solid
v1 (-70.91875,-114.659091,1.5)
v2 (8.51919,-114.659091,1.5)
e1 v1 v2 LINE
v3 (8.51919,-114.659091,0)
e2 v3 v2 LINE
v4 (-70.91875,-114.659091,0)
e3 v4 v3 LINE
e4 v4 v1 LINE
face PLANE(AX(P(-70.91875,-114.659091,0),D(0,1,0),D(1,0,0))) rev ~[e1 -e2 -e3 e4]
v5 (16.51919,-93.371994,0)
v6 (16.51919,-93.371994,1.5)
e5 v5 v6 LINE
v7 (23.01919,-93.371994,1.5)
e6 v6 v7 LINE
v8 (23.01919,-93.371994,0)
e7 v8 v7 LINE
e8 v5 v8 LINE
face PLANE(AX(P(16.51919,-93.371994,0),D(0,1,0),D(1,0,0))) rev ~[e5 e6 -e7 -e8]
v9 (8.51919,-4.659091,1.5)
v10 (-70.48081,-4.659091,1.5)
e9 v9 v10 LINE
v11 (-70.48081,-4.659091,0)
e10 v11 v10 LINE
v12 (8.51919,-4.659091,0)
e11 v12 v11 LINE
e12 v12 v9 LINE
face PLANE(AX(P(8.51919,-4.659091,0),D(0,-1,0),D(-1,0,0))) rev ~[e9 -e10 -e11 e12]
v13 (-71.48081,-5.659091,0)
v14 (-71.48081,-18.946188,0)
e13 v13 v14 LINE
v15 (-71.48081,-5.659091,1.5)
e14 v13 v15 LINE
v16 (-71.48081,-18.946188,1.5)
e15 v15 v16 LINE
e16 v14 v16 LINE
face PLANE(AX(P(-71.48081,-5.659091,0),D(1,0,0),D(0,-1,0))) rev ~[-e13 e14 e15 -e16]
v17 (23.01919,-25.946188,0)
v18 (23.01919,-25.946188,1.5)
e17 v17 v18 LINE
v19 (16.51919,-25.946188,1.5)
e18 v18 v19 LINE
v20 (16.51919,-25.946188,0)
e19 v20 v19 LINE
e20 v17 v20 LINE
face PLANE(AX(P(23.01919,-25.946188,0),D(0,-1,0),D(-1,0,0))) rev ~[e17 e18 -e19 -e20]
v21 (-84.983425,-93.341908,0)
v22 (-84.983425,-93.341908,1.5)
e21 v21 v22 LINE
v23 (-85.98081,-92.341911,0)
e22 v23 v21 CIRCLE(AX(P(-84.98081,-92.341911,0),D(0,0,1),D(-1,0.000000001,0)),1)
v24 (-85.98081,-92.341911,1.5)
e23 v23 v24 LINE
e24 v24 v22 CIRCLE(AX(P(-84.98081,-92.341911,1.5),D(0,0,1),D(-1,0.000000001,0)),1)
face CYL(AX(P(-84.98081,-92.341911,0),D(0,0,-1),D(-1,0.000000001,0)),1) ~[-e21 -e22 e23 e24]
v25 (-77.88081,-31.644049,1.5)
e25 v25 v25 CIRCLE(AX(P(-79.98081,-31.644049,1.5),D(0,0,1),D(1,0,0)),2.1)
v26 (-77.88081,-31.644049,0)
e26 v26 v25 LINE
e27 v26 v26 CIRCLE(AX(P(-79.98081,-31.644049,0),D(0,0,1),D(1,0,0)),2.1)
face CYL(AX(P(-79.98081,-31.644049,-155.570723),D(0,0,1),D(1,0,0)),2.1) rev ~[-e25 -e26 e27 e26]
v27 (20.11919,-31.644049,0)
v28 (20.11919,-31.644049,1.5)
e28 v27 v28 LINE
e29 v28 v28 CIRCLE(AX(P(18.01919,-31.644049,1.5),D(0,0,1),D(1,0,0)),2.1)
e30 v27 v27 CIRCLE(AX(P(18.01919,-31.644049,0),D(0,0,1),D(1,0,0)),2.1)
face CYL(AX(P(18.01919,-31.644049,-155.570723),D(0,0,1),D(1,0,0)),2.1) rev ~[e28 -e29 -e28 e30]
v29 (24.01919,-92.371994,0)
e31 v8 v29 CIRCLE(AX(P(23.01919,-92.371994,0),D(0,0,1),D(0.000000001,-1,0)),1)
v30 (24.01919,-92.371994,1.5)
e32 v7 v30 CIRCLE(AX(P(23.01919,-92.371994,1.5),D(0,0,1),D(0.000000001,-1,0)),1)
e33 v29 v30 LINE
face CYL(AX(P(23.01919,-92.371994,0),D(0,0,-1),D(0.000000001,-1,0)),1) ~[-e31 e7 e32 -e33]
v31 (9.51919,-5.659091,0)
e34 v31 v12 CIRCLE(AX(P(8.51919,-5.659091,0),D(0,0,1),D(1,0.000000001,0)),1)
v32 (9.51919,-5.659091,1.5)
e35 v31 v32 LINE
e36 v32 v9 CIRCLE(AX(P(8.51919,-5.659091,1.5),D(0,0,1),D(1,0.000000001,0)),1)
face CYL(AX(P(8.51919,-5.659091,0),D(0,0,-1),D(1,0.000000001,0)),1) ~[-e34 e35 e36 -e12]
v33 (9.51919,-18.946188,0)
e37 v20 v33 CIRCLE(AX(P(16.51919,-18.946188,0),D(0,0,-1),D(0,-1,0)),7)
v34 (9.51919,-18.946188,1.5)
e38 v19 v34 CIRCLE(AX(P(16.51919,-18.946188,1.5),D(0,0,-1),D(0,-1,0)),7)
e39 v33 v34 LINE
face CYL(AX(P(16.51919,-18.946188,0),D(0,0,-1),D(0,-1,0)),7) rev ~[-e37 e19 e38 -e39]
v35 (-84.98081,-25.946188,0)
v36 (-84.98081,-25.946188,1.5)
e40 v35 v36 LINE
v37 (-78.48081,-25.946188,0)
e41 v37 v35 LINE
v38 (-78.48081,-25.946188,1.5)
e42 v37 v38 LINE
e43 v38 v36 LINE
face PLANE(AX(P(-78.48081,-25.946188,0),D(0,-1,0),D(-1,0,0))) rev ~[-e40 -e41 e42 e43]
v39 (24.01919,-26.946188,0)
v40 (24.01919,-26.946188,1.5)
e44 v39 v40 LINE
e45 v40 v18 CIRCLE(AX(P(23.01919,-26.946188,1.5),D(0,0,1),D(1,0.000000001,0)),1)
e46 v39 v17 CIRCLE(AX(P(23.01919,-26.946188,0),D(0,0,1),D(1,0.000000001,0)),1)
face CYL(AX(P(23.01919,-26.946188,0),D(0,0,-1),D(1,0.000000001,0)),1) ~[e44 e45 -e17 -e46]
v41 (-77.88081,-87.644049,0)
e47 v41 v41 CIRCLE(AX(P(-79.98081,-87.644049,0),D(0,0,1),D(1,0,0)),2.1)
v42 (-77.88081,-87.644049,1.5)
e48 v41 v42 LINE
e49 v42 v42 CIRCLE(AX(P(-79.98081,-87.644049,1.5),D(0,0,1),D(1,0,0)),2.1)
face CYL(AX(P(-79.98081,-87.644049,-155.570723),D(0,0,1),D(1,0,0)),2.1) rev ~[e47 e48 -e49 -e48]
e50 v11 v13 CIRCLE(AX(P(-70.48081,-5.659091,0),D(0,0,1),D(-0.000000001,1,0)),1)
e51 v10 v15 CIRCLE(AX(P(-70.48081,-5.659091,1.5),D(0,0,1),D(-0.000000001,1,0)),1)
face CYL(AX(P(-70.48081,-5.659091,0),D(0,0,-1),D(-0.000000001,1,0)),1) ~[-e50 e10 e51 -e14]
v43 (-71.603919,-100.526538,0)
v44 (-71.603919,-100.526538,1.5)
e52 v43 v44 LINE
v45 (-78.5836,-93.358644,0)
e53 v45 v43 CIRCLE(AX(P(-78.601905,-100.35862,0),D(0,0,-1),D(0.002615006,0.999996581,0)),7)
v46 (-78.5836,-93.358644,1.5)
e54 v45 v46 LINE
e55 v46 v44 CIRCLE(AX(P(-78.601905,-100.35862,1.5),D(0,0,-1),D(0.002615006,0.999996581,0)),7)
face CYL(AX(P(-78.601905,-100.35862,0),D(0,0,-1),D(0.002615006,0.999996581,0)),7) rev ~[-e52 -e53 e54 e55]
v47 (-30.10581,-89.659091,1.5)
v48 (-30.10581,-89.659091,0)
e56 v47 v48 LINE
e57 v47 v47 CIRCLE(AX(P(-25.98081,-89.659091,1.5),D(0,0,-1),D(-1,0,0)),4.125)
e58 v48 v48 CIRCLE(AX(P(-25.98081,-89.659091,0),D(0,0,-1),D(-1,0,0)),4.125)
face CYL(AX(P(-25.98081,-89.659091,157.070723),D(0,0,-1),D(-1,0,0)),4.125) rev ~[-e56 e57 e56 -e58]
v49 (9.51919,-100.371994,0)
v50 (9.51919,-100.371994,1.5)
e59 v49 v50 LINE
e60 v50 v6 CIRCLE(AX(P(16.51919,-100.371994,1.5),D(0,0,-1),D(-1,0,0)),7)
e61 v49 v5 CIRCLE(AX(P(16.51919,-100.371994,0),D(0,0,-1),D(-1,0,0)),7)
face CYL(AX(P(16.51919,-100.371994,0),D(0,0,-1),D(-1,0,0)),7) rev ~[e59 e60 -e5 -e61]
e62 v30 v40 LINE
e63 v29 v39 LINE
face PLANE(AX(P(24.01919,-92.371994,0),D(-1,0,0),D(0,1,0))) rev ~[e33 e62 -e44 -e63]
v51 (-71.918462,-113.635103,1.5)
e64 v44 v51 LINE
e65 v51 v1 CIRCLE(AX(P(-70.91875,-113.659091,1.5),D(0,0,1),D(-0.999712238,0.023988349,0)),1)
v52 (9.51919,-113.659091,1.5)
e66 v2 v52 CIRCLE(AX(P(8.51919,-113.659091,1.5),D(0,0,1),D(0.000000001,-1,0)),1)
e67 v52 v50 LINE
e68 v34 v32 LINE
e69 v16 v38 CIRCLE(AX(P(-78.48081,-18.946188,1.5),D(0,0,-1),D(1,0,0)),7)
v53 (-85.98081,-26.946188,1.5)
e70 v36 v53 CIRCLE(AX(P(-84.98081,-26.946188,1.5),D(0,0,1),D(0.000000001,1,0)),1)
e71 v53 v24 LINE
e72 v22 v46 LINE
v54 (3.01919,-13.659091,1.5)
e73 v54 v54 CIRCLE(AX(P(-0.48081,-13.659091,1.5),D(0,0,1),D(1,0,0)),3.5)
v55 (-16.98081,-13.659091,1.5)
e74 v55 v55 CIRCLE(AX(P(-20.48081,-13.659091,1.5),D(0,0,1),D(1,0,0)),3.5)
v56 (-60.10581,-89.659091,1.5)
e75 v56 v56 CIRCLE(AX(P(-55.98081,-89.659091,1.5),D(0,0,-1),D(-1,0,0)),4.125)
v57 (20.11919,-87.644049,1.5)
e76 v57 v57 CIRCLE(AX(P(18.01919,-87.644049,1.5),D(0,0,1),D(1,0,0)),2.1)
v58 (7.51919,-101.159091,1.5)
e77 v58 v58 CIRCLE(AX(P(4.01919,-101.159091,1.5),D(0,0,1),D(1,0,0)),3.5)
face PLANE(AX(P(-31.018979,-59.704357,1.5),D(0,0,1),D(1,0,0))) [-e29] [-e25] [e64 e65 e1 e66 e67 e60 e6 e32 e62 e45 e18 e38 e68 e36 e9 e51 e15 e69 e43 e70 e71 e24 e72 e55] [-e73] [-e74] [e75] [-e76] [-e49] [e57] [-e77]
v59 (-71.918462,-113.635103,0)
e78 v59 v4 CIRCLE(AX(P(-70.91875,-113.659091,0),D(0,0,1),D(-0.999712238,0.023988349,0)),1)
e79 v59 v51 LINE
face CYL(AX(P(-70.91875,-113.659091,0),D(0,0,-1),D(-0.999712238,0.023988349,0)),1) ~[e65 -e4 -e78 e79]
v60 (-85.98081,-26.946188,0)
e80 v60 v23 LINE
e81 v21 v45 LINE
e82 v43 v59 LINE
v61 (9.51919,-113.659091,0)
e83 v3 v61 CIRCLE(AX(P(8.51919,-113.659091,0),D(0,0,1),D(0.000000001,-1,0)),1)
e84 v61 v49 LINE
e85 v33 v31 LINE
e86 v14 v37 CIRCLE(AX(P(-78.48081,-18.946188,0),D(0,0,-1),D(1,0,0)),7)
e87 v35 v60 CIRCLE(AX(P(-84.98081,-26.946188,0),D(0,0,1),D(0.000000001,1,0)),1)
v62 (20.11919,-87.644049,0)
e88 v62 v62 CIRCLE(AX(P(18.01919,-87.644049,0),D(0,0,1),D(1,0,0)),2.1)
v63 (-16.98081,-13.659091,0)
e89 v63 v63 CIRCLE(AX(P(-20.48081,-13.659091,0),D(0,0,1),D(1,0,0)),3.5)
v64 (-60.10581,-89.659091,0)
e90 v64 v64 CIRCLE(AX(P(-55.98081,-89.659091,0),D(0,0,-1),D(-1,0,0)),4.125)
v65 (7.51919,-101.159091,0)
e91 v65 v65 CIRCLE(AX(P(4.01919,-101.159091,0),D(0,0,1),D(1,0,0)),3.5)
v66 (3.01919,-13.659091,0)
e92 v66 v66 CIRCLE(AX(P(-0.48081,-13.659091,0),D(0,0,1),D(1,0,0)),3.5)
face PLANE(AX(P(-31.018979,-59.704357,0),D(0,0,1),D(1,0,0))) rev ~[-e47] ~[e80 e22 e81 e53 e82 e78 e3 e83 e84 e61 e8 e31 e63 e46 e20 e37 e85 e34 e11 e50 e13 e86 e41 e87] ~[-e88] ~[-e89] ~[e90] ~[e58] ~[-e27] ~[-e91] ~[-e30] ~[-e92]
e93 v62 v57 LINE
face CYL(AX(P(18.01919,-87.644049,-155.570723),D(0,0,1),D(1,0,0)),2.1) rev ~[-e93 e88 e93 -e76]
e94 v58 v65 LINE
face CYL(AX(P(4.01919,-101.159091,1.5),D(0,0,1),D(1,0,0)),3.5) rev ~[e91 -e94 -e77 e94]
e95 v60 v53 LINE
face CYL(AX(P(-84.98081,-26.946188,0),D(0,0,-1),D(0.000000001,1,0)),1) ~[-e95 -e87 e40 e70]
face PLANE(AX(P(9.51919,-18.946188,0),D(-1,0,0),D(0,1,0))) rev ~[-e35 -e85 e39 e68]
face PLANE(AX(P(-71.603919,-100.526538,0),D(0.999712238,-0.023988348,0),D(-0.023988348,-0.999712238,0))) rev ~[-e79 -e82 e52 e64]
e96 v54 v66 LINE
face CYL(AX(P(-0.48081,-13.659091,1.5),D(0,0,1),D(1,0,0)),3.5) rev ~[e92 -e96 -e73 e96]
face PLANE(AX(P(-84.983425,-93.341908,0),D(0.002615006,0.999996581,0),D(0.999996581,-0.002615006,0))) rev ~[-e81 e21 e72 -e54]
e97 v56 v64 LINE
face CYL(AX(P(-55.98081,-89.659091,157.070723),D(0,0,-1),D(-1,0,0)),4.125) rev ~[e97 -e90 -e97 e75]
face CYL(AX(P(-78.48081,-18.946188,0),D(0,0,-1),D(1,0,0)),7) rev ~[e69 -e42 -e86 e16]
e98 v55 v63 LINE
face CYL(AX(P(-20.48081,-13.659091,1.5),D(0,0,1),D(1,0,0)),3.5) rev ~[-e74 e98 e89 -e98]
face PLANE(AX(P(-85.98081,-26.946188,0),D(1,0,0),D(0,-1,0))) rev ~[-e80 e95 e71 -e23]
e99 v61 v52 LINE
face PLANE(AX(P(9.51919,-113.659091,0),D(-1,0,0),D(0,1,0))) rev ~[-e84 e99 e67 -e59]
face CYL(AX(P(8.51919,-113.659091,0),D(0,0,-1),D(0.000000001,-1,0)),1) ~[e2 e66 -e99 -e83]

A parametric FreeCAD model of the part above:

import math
import FreeCAD as App
import Part
import Sketcher

doc = App.newDocument("Part")
params = doc.addObject("Spreadsheet::Sheet", "Params")
for row, (alias, value) in enumerate([
    ("sketch1_radius", "1 mm"),
    ("sketch1_radius2", "7 mm"),
    ("sketch1_width", "79 mm"),
    ("sketch1_width2", "6.5 mm"),
    ("pad1_length", "1.5 mm"),
    ("sketch2_diameter", "4.2 mm"),
    ("hole_diameter", "4.2 mm"),
    ("sketch3_diameter", "8.25 mm"),
    ("hole2_diameter", "8.25 mm"),
    ("sketch4_diameter", "7 mm"),
    ("sketch5_diameter", "7 mm"),
], start=1):
    params.set(f"A{row}", alias)
    params.set(f"B{row}", "=" + value)
    params.setAlias(f"B{row}", alias)

body = doc.addObject("PartDesign::Body", "Body")

sketch1 = body.newObject("Sketcher::SketchObject", "Sketch")
sketch1.AttachmentSupport = (doc.getObject("XY_Plane"), [""])
sketch1.MapMode = "FlatFace"
sketch1.addGeometry([
    Part.LineSegment(App.Vector(9.5, -18.9, 0), App.Vector(9.5, -5.7, 0)),
    Part.ArcOfCircle(Part.Circle(App.Vector(8.5, -5.7, 0), App.Vector(0, 0, 1), 1), math.radians(0), math.radians(90)),
    Part.LineSegment(App.Vector(8.5, -4.7, 0), App.Vector(-70.5, -4.7, 0)),
    Part.ArcOfCircle(Part.Circle(App.Vector(-70.5, -5.7, 0), App.Vector(0, 0, 1), 1), math.radians(90), math.radians(180)),
    Part.LineSegment(App.Vector(-71.5, -5.7, 0), App.Vector(-71.5, -18.9, 0)),
    Part.ArcOfCircle(Part.Circle(App.Vector(-78.5, -18.9, 0), App.Vector(0, 0, 1), 7), math.radians(-90), math.radians(0)),
    Part.LineSegment(App.Vector(-78.5, -25.9, 0), App.Vector(-85, -25.9, 0)),
    Part.ArcOfCircle(Part.Circle(App.Vector(-85, -26.9, 0), App.Vector(0, 0, 1), 1), math.radians(90), math.radians(180)),
    Part.LineSegment(App.Vector(-86, -26.9, 0), App.Vector(-86, -92.3, 0)),
    Part.ArcOfCircle(Part.Circle(App.Vector(-85, -92.3, 0), App.Vector(0, 0, 1), 1), math.radians(180), math.radians(270)),
    Part.LineSegment(App.Vector(-85, -93.3, 0), App.Vector(-78.6, -93.4, 0)),
    Part.ArcOfCircle(Part.Circle(App.Vector(-78.6, -100.4, 0), App.Vector(0, 0, 1), 7), math.radians(-1), math.radians(90)),
    Part.LineSegment(App.Vector(-71.6, -100.5, 0), App.Vector(-71.9, -113.6, 0)),
    Part.ArcOfCircle(Part.Circle(App.Vector(-70.9, -113.7, 0), App.Vector(0, 0, 1), 1), math.radians(179), math.radians(270)),
    Part.LineSegment(App.Vector(-70.9, -114.7, 0), App.Vector(8.5, -114.7, 0)),
    Part.ArcOfCircle(Part.Circle(App.Vector(8.5, -113.7, 0), App.Vector(0, 0, 1), 1), math.radians(-90), math.radians(0)),
    Part.LineSegment(App.Vector(9.5, -113.7, 0), App.Vector(9.5, -100.4, 0)),
    Part.ArcOfCircle(Part.Circle(App.Vector(16.5, -100.4, 0), App.Vector(0, 0, 1), 7), math.radians(90), math.radians(180)),
    Part.LineSegment(App.Vector(16.5, -93.4, 0), App.Vector(23, -93.4, 0)),
    Part.ArcOfCircle(Part.Circle(App.Vector(23, -92.4, 0), App.Vector(0, 0, 1), 1), math.radians(-90), math.radians(0)),
    Part.LineSegment(App.Vector(24, -92.4, 0), App.Vector(24, -26.9, 0)),
    Part.ArcOfCircle(Part.Circle(App.Vector(23, -26.9, 0), App.Vector(0, 0, 1), 1), math.radians(0), math.radians(90)),
    Part.LineSegment(App.Vector(23, -25.9, 0), App.Vector(16.5, -25.9, 0)),
    Part.ArcOfCircle(Part.Circle(App.Vector(16.5, -18.9, 0), App.Vector(0, 0, 1), 7), math.radians(180), math.radians(270)),
], False)
sketch1.addConstraint([
    Sketcher.Constraint("Tangent", 0, 2, 1, 1),
    Sketcher.Constraint("Tangent", 1, 2, 2, 1),
    Sketcher.Constraint("Tangent", 2, 2, 3, 1),
    Sketcher.Constraint("Tangent", 3, 2, 4, 1),
    Sketcher.Constraint("Tangent", 4, 2, 5, 2),
    Sketcher.Constraint("Tangent", 5, 1, 6, 1),
    Sketcher.Constraint("Tangent", 6, 2, 7, 1),
    Sketcher.Constraint("Tangent", 7, 2, 8, 1),
    Sketcher.Constraint("Tangent", 8, 2, 9, 1),
    Sketcher.Constraint("Tangent", 9, 2, 10, 1),
    Sketcher.Constraint("Tangent", 10, 2, 11, 2),
    Sketcher.Constraint("Tangent", 11, 1, 12, 1),
    Sketcher.Constraint("Tangent", 12, 2, 13, 1),
    Sketcher.Constraint("Tangent", 13, 2, 14, 1),
    Sketcher.Constraint("Tangent", 14, 2, 15, 1),
    Sketcher.Constraint("Tangent", 15, 2, 16, 1),
    Sketcher.Constraint("Tangent", 16, 2, 17, 2),
    Sketcher.Constraint("Tangent", 17, 1, 18, 1),
    Sketcher.Constraint("Tangent", 18, 2, 19, 1),
    Sketcher.Constraint("Tangent", 19, 2, 20, 1),
    Sketcher.Constraint("Tangent", 20, 2, 21, 1),
    Sketcher.Constraint("Tangent", 21, 2, 22, 1),
    Sketcher.Constraint("Tangent", 22, 2, 23, 2),
    Sketcher.Constraint("Tangent", 23, 1, 0, 1),
    Sketcher.Constraint("Vertical", 0),
    Sketcher.Constraint("Horizontal", 2),
    Sketcher.Constraint("Vertical", 4),
    Sketcher.Constraint("Horizontal", 6),
    Sketcher.Constraint("Vertical", 8),
    Sketcher.Constraint("Horizontal", 14),
    Sketcher.Constraint("Vertical", 16),
    Sketcher.Constraint("Horizontal", 18),
    Sketcher.Constraint("Vertical", 20),
    Sketcher.Constraint("Horizontal", 22),
    Sketcher.Constraint("Equal", 1, 3),
    Sketcher.Constraint("Equal", 3, 7),
    Sketcher.Constraint("Equal", 7, 9),
    Sketcher.Constraint("Equal", 5, 11),
    Sketcher.Constraint("Equal", 9, 13),
    Sketcher.Constraint("Equal", 13, 15),
    Sketcher.Constraint("Equal", 11, 17),
    Sketcher.Constraint("Equal", 15, 19),
    Sketcher.Constraint("Equal", 19, 21),
    Sketcher.Constraint("Equal", 17, 23),
    Sketcher.Constraint("Horizontal", 7, 3, 21, 3),
    Sketcher.Constraint("Vertical", 1, 3, 15, 3),
    Sketcher.Constraint("Equal", 6, 18),
    Sketcher.Constraint("Equal", 4, 16),
    Sketcher.Constraint("Radius", 1, 1.0),
    Sketcher.Constraint("Radius", 5, 7.0),
    Sketcher.Constraint("DistanceX", 2, 2, 2, 1, 79.0),
    Sketcher.Constraint("DistanceX", 6, 2, 6, 1, 6.5),
    Sketcher.Constraint("DistanceY", 13, 3, 3, 3, 108.0),
    Sketcher.Constraint("DistanceX", 14, 1, 14, 2, 79.43794),
    Sketcher.Constraint("DistanceX", 10, 2, -1, 1, 78.5836),
    Sketcher.Constraint("DistanceY", 0, 1, 0, 2, 13.287097),
    Sketcher.Constraint("DistanceY", 8, 2, 8, 1, 65.395724),
    Sketcher.Constraint("DistanceX", -1, 1, 1, 3, 8.51919),
    Sketcher.Constraint("DistanceY", 1, 3, -1, 1, 5.659091),
    Sketcher.Constraint("DistanceY", 11, 3, -1, 1, 100.35862),
])
sketch1.setExpression("Constraints[48]", "Params.sketch1_radius")
sketch1.setExpression("Constraints[49]", "Params.sketch1_radius2")
sketch1.setExpression("Constraints[50]", "Params.sketch1_width")
sketch1.setExpression("Constraints[51]", "Params.sketch1_width2")
pad1 = body.newObject("PartDesign::Pad", "Pad")
pad1.Profile = sketch1
pad1.setExpression("Length", "Params.pad1_length")

sketch2 = body.newObject("Sketcher::SketchObject", "Sketch001")
sketch2.AttachmentSupport = (doc.getObject("XY_Plane"), [""])
sketch2.MapMode = "FlatFace"
sketch2.addGeometry([
    Part.Circle(App.Vector(-80, -87.6, 0), App.Vector(0, 0, 1), 2.1),
    Part.Circle(App.Vector(18, -87.6, 0), App.Vector(0, 0, 1), 2.1),
    Part.Circle(App.Vector(18, -31.6, 0), App.Vector(0, 0, 1), 2.1),
    Part.Circle(App.Vector(-80, -31.6, 0), App.Vector(0, 0, 1), 2.1),
], False)
sketch2.addConstraint([
    Sketcher.Constraint("Equal", 0, 1),
    Sketcher.Constraint("Equal", 1, 2),
    Sketcher.Constraint("Equal", 2, 3),
    Sketcher.Constraint("Horizontal", 0, 3, 1, 3),
    Sketcher.Constraint("Horizontal", 2, 3, 3, 3),
    Sketcher.Constraint("Vertical", 1, 3, 2, 3),
    Sketcher.Constraint("Vertical", 0, 3, 3, 3),
    Sketcher.Constraint("Diameter", 0, 4.2),
    Sketcher.Constraint("DistanceX", 0, 3, 1, 3, 98.0),
    Sketcher.Constraint("DistanceY", 1, 3, 2, 3, 56.0),
    Sketcher.Constraint("DistanceX", 0, 3, -1, 1, 79.98081),
    Sketcher.Constraint("DistanceY", 0, 3, -1, 1, 87.644049),
])
sketch2.setExpression("Constraints[7]", "Params.sketch2_diameter")
doc.recompute()
hole = body.newObject("PartDesign::Hole", "Hole")
hole.Profile = sketch2
hole.ThreadType = "None"
hole.setExpression("Diameter", "Params.hole_diameter")
hole.DepthType = "ThroughAll"
hole.Reversed = True

sketch3 = body.newObject("Sketcher::SketchObject", "Sketch002")
sketch3.AttachmentSupport = (doc.getObject("XY_Plane"), [""])
sketch3.MapMode = "FlatFace"
sketch3.AttachmentOffset = App.Placement(App.Vector(0, 0, 1.5), App.Rotation())
sketch3.addGeometry([
    Part.Circle(App.Vector(-56, -89.7, 0), App.Vector(0, 0, 1), 4.1),
    Part.Circle(App.Vector(-26, -89.7, 0), App.Vector(0, 0, 1), 4.1),
], False)
sketch3.addConstraint([
    Sketcher.Constraint("Equal", 0, 1),
    Sketcher.Constraint("Horizontal", 0, 3, 1, 3),
    Sketcher.Constraint("Diameter", 0, 8.25),
    Sketcher.Constraint("DistanceX", 0, 3, 1, 3, 30.0),
    Sketcher.Constraint("DistanceX", 0, 3, -1, 1, 55.98081),
    Sketcher.Constraint("DistanceY", 0, 3, -1, 1, 89.659091),
])
sketch3.setExpression("Constraints[2]", "Params.sketch3_diameter")
doc.recompute()
hole2 = body.newObject("PartDesign::Hole", "Hole001")
hole2.Profile = sketch3
hole2.ThreadType = "None"
hole2.setExpression("Diameter", "Params.hole2_diameter")
hole2.DepthType = "ThroughAll"

sketch4 = body.newObject("Sketcher::SketchObject", "Sketch003")
sketch4.AttachmentSupport = (doc.getObject("XY_Plane"), [""])
sketch4.MapMode = "FlatFace"
sketch4.AttachmentOffset = App.Placement(App.Vector(0, 0, 1.5), App.Rotation())
sketch4.addGeometry(Part.Circle(App.Vector(4, -101.2, 0), App.Vector(0, 0, 1), 3.5), False)
sketch4.addConstraint([
    Sketcher.Constraint("Diameter", 0, 7.0),
    Sketcher.Constraint("DistanceX", -1, 1, 0, 3, 4.01919),
    Sketcher.Constraint("DistanceY", 0, 3, -1, 1, 101.159091),
])
sketch4.setExpression("Constraints[0]", "Params.sketch4_diameter")
pocket1 = body.newObject("PartDesign::Pocket", "Pocket")
pocket1.Profile = sketch4
pocket1.Type = "ThroughAll"

sketch5 = body.newObject("Sketcher::SketchObject", "Sketch004")
sketch5.AttachmentSupport = (doc.getObject("XY_Plane"), [""])
sketch5.MapMode = "FlatFace"
sketch5.AttachmentOffset = App.Placement(App.Vector(0, 0, 1.5), App.Rotation())
sketch5.addGeometry([
    Part.Circle(App.Vector(-0.5, -13.7, 0), App.Vector(0, 0, 1), 3.5),
    Part.Circle(App.Vector(-20.5, -13.7, 0), App.Vector(0, 0, 1), 3.5),
], False)
sketch5.addConstraint([
    Sketcher.Constraint("Equal", 0, 1),
    Sketcher.Constraint("Horizontal", 0, 3, 1, 3),
    Sketcher.Constraint("Diameter", 0, 7.0),
    Sketcher.Constraint("DistanceX", 1, 3, 0, 3, 20.0),
    Sketcher.Constraint("DistanceX", 0, 3, -1, 1, 0.48081),
    Sketcher.Constraint("DistanceY", 0, 3, -1, 1, 13.659091),
])
sketch5.setExpression("Constraints[2]", "Params.sketch5_diameter")
pocket2 = body.newObject("PartDesign::Pocket", "Pocket001")
pocket2.Profile = sketch5
pocket2.Type = "ThroughAll"

doc.recompute()
